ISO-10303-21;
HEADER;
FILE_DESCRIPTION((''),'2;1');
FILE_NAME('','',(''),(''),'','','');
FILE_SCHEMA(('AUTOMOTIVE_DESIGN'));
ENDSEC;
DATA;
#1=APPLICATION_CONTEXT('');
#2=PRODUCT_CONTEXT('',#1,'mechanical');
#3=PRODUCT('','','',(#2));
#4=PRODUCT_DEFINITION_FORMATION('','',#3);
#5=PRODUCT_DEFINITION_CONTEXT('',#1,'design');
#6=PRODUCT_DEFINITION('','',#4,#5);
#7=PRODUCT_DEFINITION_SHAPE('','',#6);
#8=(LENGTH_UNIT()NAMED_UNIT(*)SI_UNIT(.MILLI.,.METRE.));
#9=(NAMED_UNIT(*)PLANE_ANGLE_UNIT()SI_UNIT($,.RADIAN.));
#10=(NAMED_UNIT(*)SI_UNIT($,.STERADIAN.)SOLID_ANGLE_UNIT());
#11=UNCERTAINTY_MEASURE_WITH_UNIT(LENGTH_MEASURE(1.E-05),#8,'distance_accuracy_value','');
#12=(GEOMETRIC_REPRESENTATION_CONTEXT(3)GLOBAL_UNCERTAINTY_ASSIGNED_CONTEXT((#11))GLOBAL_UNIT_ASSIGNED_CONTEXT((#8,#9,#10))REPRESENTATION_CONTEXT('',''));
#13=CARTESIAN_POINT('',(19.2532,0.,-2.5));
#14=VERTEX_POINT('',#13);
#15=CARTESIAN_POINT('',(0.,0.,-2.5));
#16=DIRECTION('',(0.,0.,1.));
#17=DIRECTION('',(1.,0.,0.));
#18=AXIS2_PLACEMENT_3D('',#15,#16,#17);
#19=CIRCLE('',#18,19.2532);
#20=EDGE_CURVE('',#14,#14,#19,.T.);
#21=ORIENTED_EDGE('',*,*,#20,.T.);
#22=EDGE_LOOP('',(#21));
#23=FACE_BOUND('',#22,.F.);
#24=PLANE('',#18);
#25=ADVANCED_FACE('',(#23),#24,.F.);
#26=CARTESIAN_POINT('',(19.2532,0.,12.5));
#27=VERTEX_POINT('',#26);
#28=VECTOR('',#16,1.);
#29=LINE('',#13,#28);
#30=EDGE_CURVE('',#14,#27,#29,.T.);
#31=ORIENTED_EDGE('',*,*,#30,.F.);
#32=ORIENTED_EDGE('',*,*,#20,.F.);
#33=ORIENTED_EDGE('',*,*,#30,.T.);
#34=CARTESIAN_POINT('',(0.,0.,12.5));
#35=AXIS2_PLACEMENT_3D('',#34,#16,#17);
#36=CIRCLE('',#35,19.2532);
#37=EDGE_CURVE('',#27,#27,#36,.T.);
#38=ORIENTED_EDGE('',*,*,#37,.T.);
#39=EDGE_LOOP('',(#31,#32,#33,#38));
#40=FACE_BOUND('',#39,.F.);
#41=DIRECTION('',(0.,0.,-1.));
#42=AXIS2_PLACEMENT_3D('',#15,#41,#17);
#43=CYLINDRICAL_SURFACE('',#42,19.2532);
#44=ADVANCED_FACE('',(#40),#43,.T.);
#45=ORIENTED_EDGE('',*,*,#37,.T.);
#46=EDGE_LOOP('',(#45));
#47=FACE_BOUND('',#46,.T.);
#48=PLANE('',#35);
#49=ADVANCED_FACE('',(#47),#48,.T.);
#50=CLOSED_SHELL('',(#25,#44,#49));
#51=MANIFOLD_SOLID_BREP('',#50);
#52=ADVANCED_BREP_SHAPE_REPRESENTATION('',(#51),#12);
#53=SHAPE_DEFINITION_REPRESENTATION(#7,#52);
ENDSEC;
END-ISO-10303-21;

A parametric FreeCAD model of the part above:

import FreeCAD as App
import Part
import Sketcher
Q = App.Units.Quantity

doc = App.newDocument("Part")
body = doc.addObject("PartDesign::Body", "Body")

# Sketch on XY plane
sketch1 = body.newObject("Sketcher::SketchObject", "Sketch")
sketch1.AttachmentSupport = (doc.getObject("XY_Plane"), [""])
sketch1.MapMode = "FlatFace"
sketch1.AttachmentOffset = App.Placement(App.Vector(0, 0, -2.5), App.Rotation())
sketch1.addGeometry(Part.Circle(App.Vector(0, 0, 0), App.Vector(0, 0, 1), 19), False)
sketch1.addConstraint([
    Sketcher.Constraint("Coincident", 0, 3, -1, 1),
    Sketcher.Constraint("Diameter", 0, Q("38.5064 mm")),
])
pad1 = body.newObject("PartDesign::Pad", "Pad")
pad1.Profile = sketch1
pad1.Length = 15

doc.recompute()
